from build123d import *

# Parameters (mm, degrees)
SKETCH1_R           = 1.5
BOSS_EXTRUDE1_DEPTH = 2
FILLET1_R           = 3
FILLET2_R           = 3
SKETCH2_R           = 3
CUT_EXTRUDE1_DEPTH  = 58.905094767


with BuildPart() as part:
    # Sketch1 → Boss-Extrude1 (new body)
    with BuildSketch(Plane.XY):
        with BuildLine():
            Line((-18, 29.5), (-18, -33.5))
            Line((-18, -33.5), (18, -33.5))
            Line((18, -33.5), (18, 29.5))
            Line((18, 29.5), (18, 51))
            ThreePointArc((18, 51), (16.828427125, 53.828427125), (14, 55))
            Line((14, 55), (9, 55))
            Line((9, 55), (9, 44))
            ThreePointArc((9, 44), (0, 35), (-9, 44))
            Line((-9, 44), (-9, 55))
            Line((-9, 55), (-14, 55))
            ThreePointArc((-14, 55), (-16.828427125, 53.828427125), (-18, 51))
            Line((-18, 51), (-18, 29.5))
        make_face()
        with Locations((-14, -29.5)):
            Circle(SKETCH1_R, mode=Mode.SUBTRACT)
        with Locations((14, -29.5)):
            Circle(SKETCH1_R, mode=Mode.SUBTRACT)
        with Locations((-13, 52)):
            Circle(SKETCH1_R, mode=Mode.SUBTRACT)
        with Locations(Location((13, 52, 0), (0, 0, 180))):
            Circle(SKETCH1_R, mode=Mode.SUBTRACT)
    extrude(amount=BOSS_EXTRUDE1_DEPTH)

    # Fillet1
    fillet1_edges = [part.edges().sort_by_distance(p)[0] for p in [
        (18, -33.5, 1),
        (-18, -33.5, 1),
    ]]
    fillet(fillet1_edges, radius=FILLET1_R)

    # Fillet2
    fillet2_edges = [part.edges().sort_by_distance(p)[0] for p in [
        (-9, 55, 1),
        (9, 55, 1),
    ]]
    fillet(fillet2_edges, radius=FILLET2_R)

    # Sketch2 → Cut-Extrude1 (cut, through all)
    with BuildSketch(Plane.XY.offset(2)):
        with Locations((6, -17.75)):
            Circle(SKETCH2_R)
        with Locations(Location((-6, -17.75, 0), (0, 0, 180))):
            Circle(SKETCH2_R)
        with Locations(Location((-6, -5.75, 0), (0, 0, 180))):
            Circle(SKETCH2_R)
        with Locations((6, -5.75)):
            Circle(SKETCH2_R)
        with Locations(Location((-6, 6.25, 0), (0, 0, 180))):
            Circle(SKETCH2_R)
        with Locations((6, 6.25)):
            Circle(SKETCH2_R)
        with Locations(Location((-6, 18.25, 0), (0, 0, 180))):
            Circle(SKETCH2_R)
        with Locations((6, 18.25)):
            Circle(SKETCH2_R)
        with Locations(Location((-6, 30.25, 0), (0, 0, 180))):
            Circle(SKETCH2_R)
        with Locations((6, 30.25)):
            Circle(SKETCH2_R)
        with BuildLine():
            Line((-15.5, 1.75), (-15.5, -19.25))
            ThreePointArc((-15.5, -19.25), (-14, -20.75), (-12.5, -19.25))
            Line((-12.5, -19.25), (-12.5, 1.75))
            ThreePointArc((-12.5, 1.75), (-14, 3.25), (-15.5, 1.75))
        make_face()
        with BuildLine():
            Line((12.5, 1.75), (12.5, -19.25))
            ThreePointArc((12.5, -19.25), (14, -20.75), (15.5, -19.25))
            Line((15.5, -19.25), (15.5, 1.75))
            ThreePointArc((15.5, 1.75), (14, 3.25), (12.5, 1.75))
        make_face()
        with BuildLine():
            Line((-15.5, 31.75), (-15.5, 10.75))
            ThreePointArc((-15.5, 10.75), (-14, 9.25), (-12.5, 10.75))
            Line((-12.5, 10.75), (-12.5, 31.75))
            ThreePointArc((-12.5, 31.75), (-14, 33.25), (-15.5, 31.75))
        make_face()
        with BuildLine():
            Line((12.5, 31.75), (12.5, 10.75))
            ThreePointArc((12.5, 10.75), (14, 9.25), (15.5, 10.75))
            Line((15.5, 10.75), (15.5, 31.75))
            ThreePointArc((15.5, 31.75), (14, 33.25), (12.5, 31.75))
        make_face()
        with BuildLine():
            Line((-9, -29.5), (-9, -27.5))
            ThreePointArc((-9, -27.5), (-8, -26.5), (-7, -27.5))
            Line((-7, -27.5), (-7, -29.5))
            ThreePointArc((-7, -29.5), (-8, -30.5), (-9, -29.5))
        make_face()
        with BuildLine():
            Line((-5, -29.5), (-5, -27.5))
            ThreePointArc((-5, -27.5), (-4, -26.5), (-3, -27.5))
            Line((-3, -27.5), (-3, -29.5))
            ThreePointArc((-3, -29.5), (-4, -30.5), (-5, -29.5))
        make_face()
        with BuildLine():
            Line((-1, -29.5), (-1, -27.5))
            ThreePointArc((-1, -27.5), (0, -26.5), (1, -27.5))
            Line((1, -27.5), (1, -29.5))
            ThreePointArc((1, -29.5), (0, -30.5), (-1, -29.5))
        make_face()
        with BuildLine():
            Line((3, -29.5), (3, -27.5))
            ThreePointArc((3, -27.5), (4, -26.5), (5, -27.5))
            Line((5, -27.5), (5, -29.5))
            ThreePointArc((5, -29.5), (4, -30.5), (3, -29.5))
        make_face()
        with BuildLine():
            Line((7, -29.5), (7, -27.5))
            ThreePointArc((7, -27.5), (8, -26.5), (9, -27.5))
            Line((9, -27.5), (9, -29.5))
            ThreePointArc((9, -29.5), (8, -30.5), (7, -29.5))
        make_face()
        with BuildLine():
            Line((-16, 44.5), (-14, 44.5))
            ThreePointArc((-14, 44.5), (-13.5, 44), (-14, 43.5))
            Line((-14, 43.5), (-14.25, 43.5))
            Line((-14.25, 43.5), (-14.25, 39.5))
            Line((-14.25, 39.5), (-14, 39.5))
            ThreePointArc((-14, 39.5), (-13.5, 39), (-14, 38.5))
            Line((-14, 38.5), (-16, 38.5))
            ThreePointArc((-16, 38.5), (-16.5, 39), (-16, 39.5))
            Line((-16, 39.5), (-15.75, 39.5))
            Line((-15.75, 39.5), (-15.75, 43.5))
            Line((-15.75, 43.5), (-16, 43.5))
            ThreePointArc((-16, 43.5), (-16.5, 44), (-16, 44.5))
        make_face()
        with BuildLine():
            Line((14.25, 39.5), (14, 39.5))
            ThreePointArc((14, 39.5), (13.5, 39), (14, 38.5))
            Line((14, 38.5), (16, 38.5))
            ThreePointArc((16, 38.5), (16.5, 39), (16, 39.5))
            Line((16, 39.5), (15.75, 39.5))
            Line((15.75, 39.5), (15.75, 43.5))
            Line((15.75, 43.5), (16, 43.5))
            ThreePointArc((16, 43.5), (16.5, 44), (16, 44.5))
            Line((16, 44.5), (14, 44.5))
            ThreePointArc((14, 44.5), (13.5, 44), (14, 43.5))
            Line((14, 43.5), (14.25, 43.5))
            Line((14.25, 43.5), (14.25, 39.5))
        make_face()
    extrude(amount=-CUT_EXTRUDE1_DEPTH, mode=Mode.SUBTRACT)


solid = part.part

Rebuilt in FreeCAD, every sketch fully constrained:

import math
import FreeCAD as App
import Part
import Sketcher

V = App.Vector
Q = App.Units.Quantity


def edges_at(feature, points):
    """Names of the edges that pass closest to the given points."""
    edges = feature.Shape.Edges
    near = lambda p: min(range(len(edges)), key=lambda i: edges[i].distToShape(Part.Vertex(*p))[0])
    return sorted({f"Edge{near(p) + 1}" for p in points})

doc = App.newDocument("Part")
body = doc.addObject("PartDesign::Body", "Body")

# Sketch on XY plane
sketch1 = body.newObject("Sketcher::SketchObject", "Sketch")
sketch1.AttachmentSupport = (doc.getObject("XY_Plane"), [""])
sketch1.MapMode = "FlatFace"
sketch1.addGeometry([
    Part.LineSegment(V(-18, -33.5, 0), V(18, -33.5, 0)),  # 0
    Part.LineSegment(V(18, -33.5, 0), V(18, 51, 0)),  # 1
    Part.ArcOfCircle(Part.Circle(V(14, 51, 0), V(0, 0, 1), 4), math.radians(0), math.radians(90)),  # 2
    Part.LineSegment(V(14, 55, 0), V(9, 55, 0)),  # 3
    Part.LineSegment(V(9, 55, 0), V(9, 44, 0)),  # 4
    Part.ArcOfCircle(Part.Circle(V(0, 44, 0), V(0, 0, 1), 9), math.radians(180), math.radians(360)),  # 5
    Part.LineSegment(V(-9, 44, 0), V(-9, 55, 0)),  # 6
    Part.LineSegment(V(-9, 55, 0), V(-14, 55, 0)),  # 7
    Part.ArcOfCircle(Part.Circle(V(-14, 51, 0), V(0, 0, 1), 4), math.radians(90), math.radians(180)),  # 8
    Part.LineSegment(V(-18, 51, 0), V(-18, -33.5, 0)),  # 9
    Part.Circle(V(-14, -29.5, 0), V(0, 0, 1), 1.5),  # 10
    Part.Circle(V(14, -29.5, 0), V(0, 0, 1), 1.5),  # 11
    Part.Circle(V(-13, 52, 0), V(0, 0, 1), 1.5),  # 12
    Part.Circle(V(13, 52, 0), V(0, 0, 1), 1.5),  # 13
], False)
sketch1.addConstraint([
    Sketcher.Constraint("Coincident", 0, 2, 1, 1),
    Sketcher.Constraint("Tangent", 1, 2, 2, 1),
    Sketcher.Constraint("Tangent", 2, 2, 3, 1),
    Sketcher.Constraint("Coincident", 3, 2, 4, 1),
    Sketcher.Constraint("Tangent", 4, 2, 5, 2),
    Sketcher.Constraint("Tangent", 5, 1, 6, 1),
    Sketcher.Constraint("Coincident", 6, 2, 7, 1),
    Sketcher.Constraint("Tangent", 7, 2, 8, 1),
    Sketcher.Constraint("Tangent", 8, 2, 9, 1),
    Sketcher.Constraint("Coincident", 9, 2, 0, 1),
    Sketcher.Constraint("Horizontal", 0),
    Sketcher.Constraint("Vertical", 1),
    Sketcher.Constraint("Horizontal", 3),
    Sketcher.Constraint("Vertical", 4),
    Sketcher.Constraint("Vertical", 6),
    Sketcher.Constraint("Horizontal", 7),
    Sketcher.Constraint("Vertical", 9),
    Sketcher.Constraint("Equal", 2, 8),
    Sketcher.Constraint("Equal", 10, 11),
    Sketcher.Constraint("Equal", 11, 12),
    Sketcher.Constraint("Equal", 12, 13),
    Sketcher.Constraint("Symmetric", 2, 3, 8, 3, -2),
    Sketcher.Constraint("Symmetric", 10, 3, 11, 3, -2),
    Sketcher.Constraint("Symmetric", 12, 3, 13, 3, -2),
    Sketcher.Constraint("PointOnObject", 5, 3, -2),
    Sketcher.Constraint("Vertical", 8, 3, 10, 3),
    Sketcher.Constraint("Diameter", 10, Q("3 mm")),
    Sketcher.Constraint("Radius", 2, Q("4 mm")),
    Sketcher.Constraint("Radius", 5, Q("9 mm")),
    Sketcher.Constraint("DistanceX", 0, 1, 0, 2, Q("36 mm")),
    Sketcher.Constraint("DistanceY", 4, 2, 4, 1, Q("11 mm")),
    Sketcher.Constraint("DistanceY", 1, 1, 1, 2, Q("84.5 mm")),
    Sketcher.Constraint("DistanceY", -1, 1, 2, 3, Q("51 mm")),
    Sketcher.Constraint("DistanceX", 12, 3, -1, 1, Q("13 mm")),
    Sketcher.Constraint("DistanceY", -1, 1, 12, 3, Q("52 mm")),
    Sketcher.Constraint("DistanceY", 0, 2, 11, 3, Q("4 mm")),
])
pad1 = body.newObject("PartDesign::Pad", "Pad")
pad1.Profile = sketch1
pad1.Length = 2
doc.recompute()

fillet = body.newObject("PartDesign::Fillet", "Fillet")
fillet.Base = (pad1, edges_at(pad1, [(18, -33.5, 1), (-18, -33.5, 1)]))
fillet.Radius = 3
doc.recompute()

fillet2 = body.newObject("PartDesign::Fillet", "Fillet001")
fillet2.Base = (fillet, edges_at(fillet, [(-9, 55, 1), (9, 55, 1)]))
fillet2.Radius = 3

# Sketch on XY plane
sketch2 = body.newObject("Sketcher::SketchObject", "Sketch001")
sketch2.AttachmentSupport = (doc.getObject("XY_Plane"), [""])
sketch2.MapMode = "FlatFace"
sketch2.AttachmentOffset = App.Placement(V(0, 0, 2), App.Rotation())
sketch2.addGeometry([
    Part.Circle(V(6, -17.75, 0), V(0, 0, 1), 3),  # 0
    Part.Circle(V(-6, -17.75, 0), V(0, 0, 1), 3),  # 1
    Part.Circle(V(-6, -5.75, 0), V(0, 0, 1), 3),  # 2
    Part.Circle(V(6, -5.75, 0), V(0, 0, 1), 3),  # 3
    Part.Circle(V(-6, 6.25, 0), V(0, 0, 1), 3),  # 4
    Part.Circle(V(6, 6.25, 0), V(0, 0, 1), 3),  # 5
    Part.Circle(V(-6, 18.25, 0), V(0, 0, 1), 3),  # 6
    Part.Circle(V(6, 18.25, 0), V(0, 0, 1), 3),  # 7
    Part.Circle(V(-6, 30.25, 0), V(0, 0, 1), 3),  # 8
    Part.Circle(V(6, 30.25, 0), V(0, 0, 1), 3),  # 9
    Part.LineSegment(V(-15.5, 1.75, 0), V(-15.5, -19.25, 0)),  # 10
    Part.ArcOfCircle(Part.Circle(V(-14, -19.25, 0), V(0, 0, 1), 1.5), math.radians(180), math.radians(360)),  # 11
    Part.LineSegment(V(-12.5, -19.25, 0), V(-12.5, 1.75, 0)),  # 12
    Part.ArcOfCircle(Part.Circle(V(-14, 1.75, 0), V(0, 0, 1), 1.5), math.radians(0), math.radians(180)),  # 13
    Part.LineSegment(V(12.5, 1.75, 0), V(12.5, -19.25, 0)),  # 14
    Part.ArcOfCircle(Part.Circle(V(14, -19.25, 0), V(0, 0, 1), 1.5), math.radians(180), math.radians(360)),  # 15
    Part.LineSegment(V(15.5, -19.25, 0), V(15.5, 1.75, 0)),  # 16
    Part.ArcOfCircle(Part.Circle(V(14, 1.75, 0), V(0, 0, 1), 1.5), math.radians(0), math.radians(180)),  # 17
    Part.LineSegment(V(-15.5, 31.75, 0), V(-15.5, 10.75, 0)),  # 18
    Part.ArcOfCircle(Part.Circle(V(-14, 10.75, 0), V(0, 0, 1), 1.5), math.radians(180), math.radians(360)),  # 19
    Part.LineSegment(V(-12.5, 10.75, 0), V(-12.5, 31.75, 0)),  # 20
    Part.ArcOfCircle(Part.Circle(V(-14, 31.75, 0), V(0, 0, 1), 1.5), math.radians(0), math.radians(180)),  # 21
    Part.LineSegment(V(12.5, 31.75, 0), V(12.5, 10.75, 0)),  # 22
    Part.ArcOfCircle(Part.Circle(V(14, 10.75, 0), V(0, 0, 1), 1.5), math.radians(180), math.radians(360)),  # 23
    Part.LineSegment(V(15.5, 10.75, 0), V(15.5, 31.75, 0)),  # 24
    Part.ArcOfCircle(Part.Circle(V(14, 31.75, 0), V(0, 0, 1), 1.5), math.radians(0), math.radians(180)),  # 25
    Part.LineSegment(V(-9, -27.5, 0), V(-9, -29.5, 0)),  # 26
    Part.ArcOfCircle(Part.Circle(V(-8, -29.5, 0), V(0, 0, 1), 1), math.radians(180), math.radians(360)),  # 27
    Part.LineSegment(V(-7, -29.5, 0), V(-7, -27.5, 0)),  # 28
    Part.ArcOfCircle(Part.Circle(V(-8, -27.5, 0), V(0, 0, 1), 1), math.radians(0), math.radians(180)),  # 29
    Part.LineSegment(V(-5, -27.5, 0), V(-5, -29.5, 0)),  # 30
    Part.ArcOfCircle(Part.Circle(V(-4, -29.5, 0), V(0, 0, 1), 1), math.radians(180), math.radians(360)),  # 31
    Part.LineSegment(V(-3, -29.5, 0), V(-3, -27.5, 0)),  # 32
    Part.ArcOfCircle(Part.Circle(V(-4, -27.5, 0), V(0, 0, 1), 1), math.radians(0), math.radians(180)),  # 33
    Part.LineSegment(V(-1, -27.5, 0), V(-1, -29.5, 0)),  # 34
    Part.ArcOfCircle(Part.Circle(V(0, -29.5, 0), V(0, 0, 1), 1), math.radians(180), math.radians(360)),  # 35
    Part.LineSegment(V(1, -29.5, 0), V(1, -27.5, 0)),  # 36
    Part.ArcOfCircle(Part.Circle(V(0, -27.5, 0), V(0, 0, 1), 1), math.radians(0), math.radians(180)),  # 37
    Part.LineSegment(V(3, -27.5, 0), V(3, -29.5, 0)),  # 38
    Part.ArcOfCircle(Part.Circle(V(4, -29.5, 0), V(0, 0, 1), 1), math.radians(180), math.radians(360)),  # 39
    Part.LineSegment(V(5, -29.5, 0), V(5, -27.5, 0)),  # 40
    Part.ArcOfCircle(Part.Circle(V(4, -27.5, 0), V(0, 0, 1), 1), math.radians(0), math.radians(180)),  # 41
    Part.LineSegment(V(7, -27.5, 0), V(7, -29.5, 0)),  # 42
    Part.ArcOfCircle(Part.Circle(V(8, -29.5, 0), V(0, 0, 1), 1), math.radians(180), math.radians(360)),  # 43
    Part.LineSegment(V(9, -29.5, 0), V(9, -27.5, 0)),  # 44
    Part.ArcOfCircle(Part.Circle(V(8, -27.5, 0), V(0, 0, 1), 1), math.radians(0), math.radians(180)),  # 45
    Part.LineSegment(V(-14, 44.5, 0), V(-16, 44.5, 0)),  # 46
    Part.ArcOfCircle(Part.Circle(V(-16, 44, 0), V(0, 0, 1), 0.5), math.radians(90), math.radians(270)),  # 47
    Part.LineSegment(V(-16, 43.5, 0), V(-15.75, 43.5, 0)),  # 48
    Part.LineSegment(V(-15.75, 43.5, 0), V(-15.75, 39.5, 0)),  # 49
    Part.LineSegment(V(-15.75, 39.5, 0), V(-16, 39.5, 0)),  # 50
    Part.ArcOfCircle(Part.Circle(V(-16, 39, 0), V(0, 0, 1), 0.5), math.radians(90), math.radians(270)),  # 51
    Part.LineSegment(V(-16, 38.5, 0), V(-14, 38.5, 0)),  # 52
    Part.ArcOfCircle(Part.Circle(V(-14, 39, 0), V(0, 0, 1), 0.5), math.radians(-90), math.radians(90)),  # 53
    Part.LineSegment(V(-14, 39.5, 0), V(-14.25, 39.5, 0)),  # 54
    Part.LineSegment(V(-14.25, 39.5, 0), V(-14.25, 43.5, 0)),  # 55
    Part.LineSegment(V(-14.25, 43.5, 0), V(-14, 43.5, 0)),  # 56
    Part.ArcOfCircle(Part.Circle(V(-14, 44, 0), V(0, 0, 1), 0.5), math.radians(-90), math.radians(90)),  # 57
    Part.LineSegment(V(14.25, 39.5, 0), V(14, 39.5, 0)),  # 58
    Part.ArcOfCircle(Part.Circle(V(14, 39, 0), V(0, 0, 1), 0.5), math.radians(90), math.radians(270)),  # 59
    Part.LineSegment(V(14, 38.5, 0), V(16, 38.5, 0)),  # 60
    Part.ArcOfCircle(Part.Circle(V(16, 39, 0), V(0, 0, 1), 0.5), math.radians(-90), math.radians(90)),  # 61
    Part.LineSegment(V(16, 39.5, 0), V(15.75, 39.5, 0)),  # 62
    Part.LineSegment(V(15.75, 39.5, 0), V(15.75, 43.5, 0)),  # 63
    Part.LineSegment(V(15.75, 43.5, 0), V(16, 43.5, 0)),  # 64
    Part.ArcOfCircle(Part.Circle(V(16, 44, 0), V(0, 0, 1), 0.5), math.radians(-90), math.radians(90)),  # 65
    Part.LineSegment(V(16, 44.5, 0), V(14, 44.5, 0)),  # 66
    Part.ArcOfCircle(Part.Circle(V(14, 44, 0), V(0, 0, 1), 0.5), math.radians(90), math.radians(270)),  # 67
    Part.LineSegment(V(14, 43.5, 0), V(14.25, 43.5, 0)),  # 68
    Part.LineSegment(V(14.25, 43.5, 0), V(14.25, 39.5, 0)),  # 69
], False)
sketch2.addConstraint([
    Sketcher.Constraint("Tangent", 10, 2, 11, 1),
    Sketcher.Constraint("Tangent", 11, 2, 12, 1),
    Sketcher.Constraint("Tangent", 12, 2, 13, 1),
    Sketcher.Constraint("Tangent", 13, 2, 10, 1),
    Sketcher.Constraint("Tangent", 14, 2, 15, 1),
    Sketcher.Constraint("Tangent", 15, 2, 16, 1),
    Sketcher.Constraint("Tangent", 16, 2, 17, 1),
    Sketcher.Constraint("Tangent", 17, 2, 14, 1),
    Sketcher.Constraint("Tangent", 18, 2, 19, 1),
    Sketcher.Constraint("Tangent", 19, 2, 20, 1),
    Sketcher.Constraint("Tangent", 20, 2, 21, 1),
    Sketcher.Constraint("Tangent", 21, 2, 18, 1),
    Sketcher.Constraint("Tangent", 22, 2, 23, 1),
    Sketcher.Constraint("Tangent", 23, 2, 24, 1),
    Sketcher.Constraint("Tangent", 24, 2, 25, 1),
    Sketcher.Constraint("Tangent", 25, 2, 22, 1),
    Sketcher.Constraint("Tangent", 26, 2, 27, 1),
    Sketcher.Constraint("Tangent", 27, 2, 28, 1),
    Sketcher.Constraint("Tangent", 28, 2, 29, 1),
    Sketcher.Constraint("Tangent", 29, 2, 26, 1),
    Sketcher.Constraint("Tangent", 30, 2, 31, 1),
    Sketcher.Constraint("Tangent", 31, 2, 32, 1),
    Sketcher.Constraint("Tangent", 32, 2, 33, 1),
    Sketcher.Constraint("Tangent", 33, 2, 30, 1),
    Sketcher.Constraint("Tangent", 34, 2, 35, 1),
    Sketcher.Constraint("Tangent", 35, 2, 36, 1),
    Sketcher.Constraint("Tangent", 36, 2, 37, 1),
    Sketcher.Constraint("Tangent", 37, 2, 34, 1),
    Sketcher.Constraint("Tangent", 38, 2, 39, 1),
    Sketcher.Constraint("Tangent", 39, 2, 40, 1),
    Sketcher.Constraint("Tangent", 40, 2, 41, 1),
    Sketcher.Constraint("Tangent", 41, 2, 38, 1),
    Sketcher.Constraint("Tangent", 42, 2, 43, 1),
    Sketcher.Constraint("Tangent", 43, 2, 44, 1),
    Sketcher.Constraint("Tangent", 44, 2, 45, 1),
    Sketcher.Constraint("Tangent", 45, 2, 42, 1),
    Sketcher.Constraint("Tangent", 46, 2, 47, 1),
    Sketcher.Constraint("Tangent", 47, 2, 48, 1),
    Sketcher.Constraint("Coincident", 48, 2, 49, 1),
    Sketcher.Constraint("Coincident", 49, 2, 50, 1),
    Sketcher.Constraint("Tangent", 50, 2, 51, 1),
    Sketcher.Constraint("Tangent", 51, 2, 52, 1),
    Sketcher.Constraint("Tangent", 52, 2, 53, 1),
    Sketcher.Constraint("Tangent", 53, 2, 54, 1),
    Sketcher.Constraint("Coincident", 54, 2, 55, 1),
    Sketcher.Constraint("Coincident", 55, 2, 56, 1),
    Sketcher.Constraint("Tangent", 56, 2, 57, 1),
    Sketcher.Constraint("Tangent", 57, 2, 46, 1),
    Sketcher.Constraint("Tangent", 58, 2, 59, 1),
    Sketcher.Constraint("Tangent", 59, 2, 60, 1),
    Sketcher.Constraint("Tangent", 60, 2, 61, 1),
    Sketcher.Constraint("Tangent", 61, 2, 62, 1),
    Sketcher.Constraint("Coincident", 62, 2, 63, 1),
    Sketcher.Constraint("Coincident", 63, 2, 64, 1),
    Sketcher.Constraint("Tangent", 64, 2, 65, 1),
    Sketcher.Constraint("Tangent", 65, 2, 66, 1),
    Sketcher.Constraint("Tangent", 66, 2, 67, 1),
    Sketcher.Constraint("Tangent", 67, 2, 68, 1),
    Sketcher.Constraint("Coincident", 68, 2, 69, 1),
    Sketcher.Constraint("Coincident", 69, 2, 58, 1),
    Sketcher.Constraint("Vertical", 10),
    Sketcher.Constraint("Vertical", 12),
    Sketcher.Constraint("Vertical", 14),
    Sketcher.Constraint("Vertical", 16),
    Sketcher.Constraint("Vertical", 18),
    Sketcher.Constraint("Vertical", 20),
    Sketcher.Constraint("Vertical", 22),
    Sketcher.Constraint("Vertical", 24),
    Sketcher.Constraint("Vertical", 26),
    Sketcher.Constraint("Vertical", 28),
    Sketcher.Constraint("Vertical", 30),
    Sketcher.Constraint("Vertical", 32),
    Sketcher.Constraint("Vertical", 34),
    Sketcher.Constraint("Vertical", 36),
    Sketcher.Constraint("Vertical", 38),
    Sketcher.Constraint("Vertical", 40),
    Sketcher.Constraint("Vertical", 42),
    Sketcher.Constraint("Vertical", 44),
    Sketcher.Constraint("Horizontal", 46),
    Sketcher.Constraint("Horizontal", 48),
    Sketcher.Constraint("Vertical", 49),
    Sketcher.Constraint("Horizontal", 50),
    Sketcher.Constraint("Horizontal", 52),
    Sketcher.Constraint("Horizontal", 54),
    Sketcher.Constraint("Vertical", 55),
    Sketcher.Constraint("Horizontal", 56),
    Sketcher.Constraint("Horizontal", 58),
    Sketcher.Constraint("Horizontal", 60),
    Sketcher.Constraint("Horizontal", 62),
    Sketcher.Constraint("Vertical", 63),
    Sketcher.Constraint("Horizontal", 64),
    Sketcher.Constraint("Horizontal", 66),
    Sketcher.Constraint("Horizontal", 68),
    Sketcher.Constraint("Vertical", 69),
    Sketcher.Constraint("Equal", 0, 1),
    Sketcher.Constraint("Equal", 1, 2),
    Sketcher.Constraint("Equal", 2, 3),
    Sketcher.Constraint("Equal", 3, 4),
    Sketcher.Constraint("Equal", 4, 5),
    Sketcher.Constraint("Equal", 5, 6),
    Sketcher.Constraint("Equal", 6, 7),
    Sketcher.Constraint("Equal", 7, 8),
    Sketcher.Constraint("Equal", 8, 9),
    Sketcher.Constraint("Equal", 13, 15),
    Sketcher.Constraint("Equal", 17, 19),
    Sketcher.Constraint("Equal", 21, 23),
    Sketcher.Constraint("Equal", 29, 31),
    Sketcher.Constraint("Equal", 33, 35),
    Sketcher.Constraint("Equal", 37, 39),
    Sketcher.Constraint("Equal", 41, 43),
    Sketcher.Constraint("Equal", 47, 51),
    Sketcher.Constraint("Equal", 51, 53),
    Sketcher.Constraint("Equal", 53, 57),
    Sketcher.Constraint("Equal", 57, 59),
    Sketcher.Constraint("Equal", 59, 61),
    Sketcher.Constraint("Equal", 61, 65),
    Sketcher.Constraint("Equal", 65, 67),
    Sketcher.Constraint("Symmetric", 0, 3, 1, 3, -2),
    Sketcher.Constraint("Symmetric", 2, 3, 3, 3, -2),
    Sketcher.Constraint("Symmetric", 4, 3, 5, 3, -2),
    Sketcher.Constraint("Symmetric", 6, 3, 7, 3, -2),
    Sketcher.Constraint("Symmetric", 8, 3, 9, 3, -2),
    Sketcher.Constraint("Symmetric", 11, 3, 15, 3, -2),
    Sketcher.Constraint("Symmetric", 19, 3, 23, 3, -2),
    Sketcher.Constraint("Symmetric", 31, 3, 39, 3, -2),
    Sketcher.Constraint("Symmetric", 27, 3, 43, 3, -2),
    Sketcher.Constraint("Symmetric", 53, 3, 59, 3, -2),
    Sketcher.Constraint("Symmetric", 47, 3, 65, 3, -2),
    Sketcher.Constraint("PointOnObject", 35, 3, -2),
    Sketcher.Constraint("Horizontal", 13, 3, 17, 3),
    Sketcher.Constraint("Horizontal", 21, 3, 25, 3),
    Sketcher.Constraint("Horizontal", 27, 3, 31, 3),
    Sketcher.Constraint("Horizontal", 29, 3, 33, 3),
    Sketcher.Constraint("Horizontal", 31, 3, 35, 3),
    Sketcher.Constraint("Horizontal", 33, 3, 37, 3),
    Sketcher.Constraint("Horizontal", 37, 3, 41, 3),
    Sketcher.Constraint("Horizontal", 41, 3, 45, 3),
    Sketcher.Constraint("Vertical", 1, 3, 2, 3),
    Sketcher.Constraint("Vertical", 2, 3, 4, 3),
    Sketcher.Constraint("Vertical", 4, 3, 6, 3),
    Sketcher.Constraint("Vertical", 6, 3, 8, 3),
    Sketcher.Constraint("Vertical", 13, 3, 19, 3),
    Sketcher.Constraint("Vertical", 47, 3, 51, 3),
    Sketcher.Constraint("Vertical", 21, 3, 53, 3),
    Sketcher.Constraint("Vertical", 53, 3, 57, 3),
    Sketcher.Constraint("Vertical", 61, 3, 65, 3),
    Sketcher.Constraint("Vertical", 59, 3, 67, 3),
    Sketcher.Constraint("Equal", 50, 54),
    Sketcher.Constraint("Equal", 56, 58),
    Sketcher.Constraint("Equal", 58, 62),
    Sketcher.Constraint("Equal", 16, 18),
    Sketcher.Constraint("Equal", 66, 26),
    Sketcher.Constraint("Diameter", 0, Q("6 mm")),
    Sketcher.Constraint("Radius", 27, Q("1 mm")),
    Sketcher.Constraint("Radius", 11, Q("1.5 mm")),
    Sketcher.Constraint("Radius", 47, Q("0.5 mm")),
    Sketcher.Constraint("DistanceX", 46, 2, 46, 1, Q("2 mm")),
    Sketcher.Constraint("DistanceY", 10, 2, 10, 1, Q("21 mm")),
    Sketcher.Constraint("DistanceY", 49, 2, 49, 1, Q("4 mm")),
    Sketcher.Constraint("DistanceX", -1, 1, 0, 3, Q("6 mm")),
    Sketcher.Constraint("DistanceX", 11, 3, -1, 1, Q("14 mm")),
    Sketcher.Constraint("DistanceX", 27, 3, -1, 1, Q("8 mm")),
    Sketcher.Constraint("DistanceX", 31, 3, -1, 1, Q("4 mm")),
    Sketcher.Constraint("DistanceY", -1, 1, 47, 3, Q("44 mm")),
    Sketcher.Constraint("DistanceX", 48, 1, 48, 2, Q("0.25 mm")),
    Sketcher.Constraint("DistanceY", 27, 3, -1, 1, Q("29.5 mm")),
    Sketcher.Constraint("DistanceY", 0, 3, -1, 1, Q("17.75 mm")),
    Sketcher.Constraint("DistanceY", 2, 3, -1, 1, Q("5.75 mm")),
    Sketcher.Constraint("DistanceY", -1, 1, 4, 3, Q("6.25 mm")),
    Sketcher.Constraint("DistanceY", -1, 1, 6, 3, Q("18.25 mm")),
    Sketcher.Constraint("DistanceY", -1, 1, 8, 3, Q("30.25 mm")),
    Sketcher.Constraint("DistanceY", 11, 3, -1, 1, Q("19.25 mm")),
    Sketcher.Constraint("DistanceY", -1, 1, 19, 3, Q("10.75 mm")),
])
pocket1 = body.newObject("PartDesign::Pocket", "Pocket")
pocket1.Profile = sketch2
pocket1.Type = "ThroughAll"

doc.recompute()
